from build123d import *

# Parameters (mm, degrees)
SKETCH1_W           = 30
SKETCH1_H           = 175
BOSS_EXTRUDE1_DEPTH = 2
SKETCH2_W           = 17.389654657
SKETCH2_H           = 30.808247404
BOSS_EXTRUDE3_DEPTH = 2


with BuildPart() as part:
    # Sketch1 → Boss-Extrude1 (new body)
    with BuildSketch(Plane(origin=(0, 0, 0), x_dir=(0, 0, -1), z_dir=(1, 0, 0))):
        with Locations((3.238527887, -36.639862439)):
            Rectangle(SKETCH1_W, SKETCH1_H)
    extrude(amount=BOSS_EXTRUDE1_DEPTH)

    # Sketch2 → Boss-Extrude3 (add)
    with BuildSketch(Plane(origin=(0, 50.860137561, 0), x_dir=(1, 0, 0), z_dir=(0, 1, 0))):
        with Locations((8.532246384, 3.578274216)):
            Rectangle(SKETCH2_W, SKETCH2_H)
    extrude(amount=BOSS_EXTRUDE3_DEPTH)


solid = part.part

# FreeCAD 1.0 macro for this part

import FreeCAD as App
import Part
import Sketcher
Q = App.Units.Quantity

doc = App.newDocument("Part")
body = doc.addObject("PartDesign::Body", "Body")

sketch1 = body.newObject("Sketcher::SketchObject", "Sketch")
sketch1.AttachmentSupport = (doc.getObject("YZ_Plane"), [""])
sketch1.MapMode = "FlatFace"
sketch1.addGeometry(Part.LineSegment(App.Vector(51, 12, 0), App.Vector(-124, 12, 0)), False)
sketch1.addGeometry(Part.LineSegment(App.Vector(-124, 12, 0), App.Vector(-124, -18, 0)), False)
sketch1.addGeometry(Part.LineSegment(App.Vector(-124, -18, 0), App.Vector(51, -18, 0)), False)
sketch1.addGeometry(Part.LineSegment(App.Vector(51, -18, 0), App.Vector(51, 12, 0)), False)
sketch1.addConstraint(Sketcher.Constraint("Coincident", 0, 2, 1, 1))
sketch1.addConstraint(Sketcher.Constraint("Coincident", 1, 2, 2, 1))
sketch1.addConstraint(Sketcher.Constraint("Coincident", 2, 2, 3, 1))
sketch1.addConstraint(Sketcher.Constraint("Coincident", 3, 2, 0, 1))
sketch1.addConstraint(Sketcher.Constraint("Horizontal", 0))
sketch1.addConstraint(Sketcher.Constraint("Vertical", 1))
sketch1.addConstraint(Sketcher.Constraint("Horizontal", 2))
sketch1.addConstraint(Sketcher.Constraint("Vertical", 3))
sketch1.addConstraint(Sketcher.Constraint("DistanceX", 0, 2, 0, 1, Q("175 mm")))
sketch1.addConstraint(Sketcher.Constraint("DistanceY", 1, 2, 1, 1, Q("30 mm")))
sketch1.addConstraint(Sketcher.Constraint("DistanceX", 0, 2, -1, 1, Q("124.139862 mm")))
sketch1.addConstraint(Sketcher.Constraint("DistanceY", -1, 1, 0, 2, Q("11.761472 mm")))
pad1 = body.newObject("PartDesign::Pad", "Pad")
pad1.Profile = sketch1
pad1.Length = 2

sketch2 = body.newObject("Sketcher::SketchObject", "Sketch001")
sketch2.AttachmentSupport = (doc.getObject("XZ_Plane"), [""])
sketch2.MapMode = "FlatFace"
sketch2.AttachmentOffset = App.Placement(App.Vector(0, 0, -50.860138), App.Rotation())
sketch2.addGeometry(Part.LineSegment(App.Vector(0, -19, 0), App.Vector(0, 12, 0)), False)
sketch2.addGeometry(Part.LineSegment(App.Vector(0, 12, 0), App.Vector(17, 12, 0)), False)
sketch2.addGeometry(Part.LineSegment(App.Vector(17, 12, 0), App.Vector(17, -19, 0)), False)
sketch2.addGeometry(Part.LineSegment(App.Vector(17, -19, 0), App.Vector(0, -19, 0)), False)
sketch2.addConstraint(Sketcher.Constraint("Coincident", 0, 2, 1, 1))
sketch2.addConstraint(Sketcher.Constraint("Coincident", 1, 2, 2, 1))
sketch2.addConstraint(Sketcher.Constraint("Coincident", 2, 2, 3, 1))
sketch2.addConstraint(Sketcher.Constraint("Coincident", 3, 2, 0, 1))
sketch2.addConstraint(Sketcher.Constraint("Vertical", 0))
sketch2.addConstraint(Sketcher.Constraint("Horizontal", 1))
sketch2.addConstraint(Sketcher.Constraint("Vertical", 2))
sketch2.addConstraint(Sketcher.Constraint("Horizontal", 3))
sketch2.addConstraint(Sketcher.Constraint("DistanceX", 1, 1, 1, 2, Q("17.389655 mm")))
sketch2.addConstraint(Sketcher.Constraint("DistanceY", 0, 1, 0, 2, Q("30.808247 mm")))
sketch2.addConstraint(Sketcher.Constraint("DistanceX", 0, 2, -1, 1, Q("0.162581 mm")))
sketch2.addConstraint(Sketcher.Constraint("DistanceY", -1, 1, 0, 2, Q("11.825849 mm")))
pad2 = body.newObject("PartDesign::Pad", "Pad001")
pad2.Profile = sketch2
pad2.Length = 2
pad2.Reversed = True

doc.recompute()
